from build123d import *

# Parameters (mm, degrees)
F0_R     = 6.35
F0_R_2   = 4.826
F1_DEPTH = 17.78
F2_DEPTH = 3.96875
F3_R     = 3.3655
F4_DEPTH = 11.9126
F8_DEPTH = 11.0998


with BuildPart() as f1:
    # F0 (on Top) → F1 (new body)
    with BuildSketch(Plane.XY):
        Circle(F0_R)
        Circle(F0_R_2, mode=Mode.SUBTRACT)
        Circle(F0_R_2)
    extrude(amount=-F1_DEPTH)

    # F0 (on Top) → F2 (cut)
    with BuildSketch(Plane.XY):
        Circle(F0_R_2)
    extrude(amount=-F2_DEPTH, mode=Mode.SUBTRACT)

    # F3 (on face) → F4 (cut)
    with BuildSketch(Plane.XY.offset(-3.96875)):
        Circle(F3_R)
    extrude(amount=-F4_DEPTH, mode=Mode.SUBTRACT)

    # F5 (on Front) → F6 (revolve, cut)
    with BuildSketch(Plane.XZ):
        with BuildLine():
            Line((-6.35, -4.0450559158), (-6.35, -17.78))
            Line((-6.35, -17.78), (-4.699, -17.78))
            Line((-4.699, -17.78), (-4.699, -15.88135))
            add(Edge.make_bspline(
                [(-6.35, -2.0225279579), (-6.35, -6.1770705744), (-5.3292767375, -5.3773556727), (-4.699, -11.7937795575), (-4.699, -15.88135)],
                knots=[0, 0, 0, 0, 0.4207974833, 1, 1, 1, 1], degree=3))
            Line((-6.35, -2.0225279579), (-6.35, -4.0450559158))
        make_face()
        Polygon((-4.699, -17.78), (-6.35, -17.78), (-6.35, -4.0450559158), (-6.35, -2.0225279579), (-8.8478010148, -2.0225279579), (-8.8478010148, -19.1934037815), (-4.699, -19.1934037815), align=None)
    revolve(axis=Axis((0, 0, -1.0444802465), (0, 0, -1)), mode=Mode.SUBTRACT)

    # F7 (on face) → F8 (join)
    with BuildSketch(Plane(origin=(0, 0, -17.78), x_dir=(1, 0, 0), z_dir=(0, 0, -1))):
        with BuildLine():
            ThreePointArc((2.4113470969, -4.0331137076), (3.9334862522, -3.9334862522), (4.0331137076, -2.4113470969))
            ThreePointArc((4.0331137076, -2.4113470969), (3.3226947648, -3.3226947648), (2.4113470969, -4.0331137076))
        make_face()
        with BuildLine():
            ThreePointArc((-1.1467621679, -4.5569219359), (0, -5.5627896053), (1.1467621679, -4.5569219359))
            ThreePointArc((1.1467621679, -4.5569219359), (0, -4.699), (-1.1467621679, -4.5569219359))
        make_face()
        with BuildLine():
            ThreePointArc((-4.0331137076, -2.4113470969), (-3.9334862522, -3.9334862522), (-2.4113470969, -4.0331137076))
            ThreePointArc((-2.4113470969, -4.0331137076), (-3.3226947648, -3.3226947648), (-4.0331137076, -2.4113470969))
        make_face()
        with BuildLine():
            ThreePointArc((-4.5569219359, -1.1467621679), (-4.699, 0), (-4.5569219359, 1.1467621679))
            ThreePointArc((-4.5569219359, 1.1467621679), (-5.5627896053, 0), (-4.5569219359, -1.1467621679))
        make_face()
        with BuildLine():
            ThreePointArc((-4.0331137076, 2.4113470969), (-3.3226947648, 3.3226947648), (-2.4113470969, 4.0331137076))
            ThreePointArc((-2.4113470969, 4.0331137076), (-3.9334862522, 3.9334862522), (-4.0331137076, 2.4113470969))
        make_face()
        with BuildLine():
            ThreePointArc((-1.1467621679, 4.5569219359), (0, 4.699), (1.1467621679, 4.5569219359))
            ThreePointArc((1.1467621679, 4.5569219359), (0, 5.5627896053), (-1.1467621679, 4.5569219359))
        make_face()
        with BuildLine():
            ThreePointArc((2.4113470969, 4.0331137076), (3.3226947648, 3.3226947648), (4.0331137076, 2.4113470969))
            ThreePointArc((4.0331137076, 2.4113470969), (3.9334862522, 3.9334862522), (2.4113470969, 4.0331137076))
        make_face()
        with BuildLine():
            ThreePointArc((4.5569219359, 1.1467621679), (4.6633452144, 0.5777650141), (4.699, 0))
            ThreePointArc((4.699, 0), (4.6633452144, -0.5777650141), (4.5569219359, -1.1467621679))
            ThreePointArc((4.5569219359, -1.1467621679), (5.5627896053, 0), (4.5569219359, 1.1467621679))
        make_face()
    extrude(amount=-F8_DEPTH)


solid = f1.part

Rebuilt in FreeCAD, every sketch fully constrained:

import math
import FreeCAD as App
import Part
import Sketcher

V = App.Vector
Q = App.Units.Quantity

doc = App.newDocument("Part")
body = doc.addObject("PartDesign::Body", "Body")

# Sketch on XY plane
sketch1 = doc.addObject("Sketcher::SketchObject", "Sketch")
body.addObject(sketch1)
sketch1.AttachmentSupport = (doc.XY_Plane, [""])
sketch1.MapMode = "FlatFace"
sketch1.addGeometry(Part.Circle(V(0, 0, 0), V(0, 0, 1), 6.35), False)
sketch1.addConstraint([
    Sketcher.Constraint("Coincident", 0, 3, -1, 1),
    Sketcher.Constraint("Diameter", 0, Q("0.5 in")),
])
pad1 = doc.addObject("PartDesign::Pad", "Pad")
body.addObject(pad1)
pad1.Profile = sketch1
pad1.Length = Q("0.7 in")
pad1.Reversed = True

# Sketch on XY plane
sketch2 = doc.addObject("Sketcher::SketchObject", "Sketch001")
body.addObject(sketch2)
sketch2.AttachmentSupport = (doc.XY_Plane, [""])
sketch2.MapMode = "FlatFace"
sketch2.addGeometry(Part.Circle(V(0, 0, 0), V(0, 0, 1), 4.826), False)
sketch2.addConstraint([
    Sketcher.Constraint("Coincident", 0, 3, -1, 1),
    Sketcher.Constraint("Diameter", 0, Q("0.38 in")),
])
pocket1 = doc.addObject("PartDesign::Pocket", "Pocket")
body.addObject(pocket1)
pocket1.Profile = sketch2
pocket1.Length = Q("0.15625 in")

# Sketch on XY plane
sketch3 = doc.addObject("Sketcher::SketchObject", "Sketch002")
body.addObject(sketch3)
sketch3.AttachmentSupport = (doc.XY_Plane, [""])
sketch3.MapMode = "FlatFace"
sketch3.AttachmentOffset = App.Placement(V(0, 0, -0.15625 * 25.4), App.Rotation())
sketch3.addGeometry(Part.Circle(V(0, 0, 0), V(0, 0, 1), 3.3655), False)
sketch3.addConstraint([
    Sketcher.Constraint("Coincident", 0, 3, -1, 1),
    Sketcher.Constraint("Diameter", 0, Q("0.265 in")),
])
pocket2 = doc.addObject("PartDesign::Pocket", "Pocket001")
body.addObject(pocket2)
pocket2.Profile = sketch3
pocket2.Length = Q("0.469 in")

# Sketch on XZ plane
sketch4 = doc.addObject("Sketcher::SketchObject", "Sketch003")
body.addObject(sketch4)
sketch4.AttachmentSupport = (doc.XZ_Plane, [""])
sketch4.MapMode = "FlatFace"
sketch4.addGeometry([
    Part.BSplineCurve([V(-6.35, -2.022528, 0), V(-6.35, -6.177071, 0), V(-5.329277, -5.377356, 0), V(-4.699, -11.79378, 0), V(-4.699, -15.88135, 0)], [4, 1, 4], [0, 0.420797483, 1], False, 3, [1, 1, 1, 1, 1], False),  # 0
    Part.LineSegment(V(-6.35, -2.022528, 0), V(-8.847801, -2.022528, 0)),  # 1
    Part.LineSegment(V(-8.847801, -2.022528, 0), V(-8.847801, -19.193404, 0)),  # 2
    Part.LineSegment(V(-8.847801, -19.193404, 0), V(-4.699, -19.193404, 0)),  # 3
    Part.LineSegment(V(-4.699, -19.193404, 0), V(-4.699, -15.88135, 0)),  # 4
], False)
sketch4.addConstraint([
    Sketcher.Constraint("Block", 0),
    Sketcher.Constraint("Coincident", 0, 1, 1, 1),
    Sketcher.Constraint("Coincident", 1, 2, 2, 1),
    Sketcher.Constraint("Coincident", 2, 2, 3, 1),
    Sketcher.Constraint("Coincident", 3, 2, 4, 1),
    Sketcher.Constraint("Coincident", 4, 2, 0, 2),
    Sketcher.Constraint("Horizontal", 1),
    Sketcher.Constraint("Vertical", 2),
    Sketcher.Constraint("Horizontal", 3),
    Sketcher.Constraint("Vertical", 4),
    Sketcher.Constraint("DistanceX", 1, 2, 1, 1, Q("2.497801 mm")),
    Sketcher.Constraint("DistanceY", 2, 2, 2, 1, Q("17.170876 mm")),
])
groove = doc.addObject("PartDesign::Groove", "Groove")
body.addObject(groove)
groove.Profile = sketch4
groove.ReferenceAxis = (sketch4, ["V_Axis"])
groove.Angle = 360

# Sketch on XY plane
sketch5 = doc.addObject("Sketcher::SketchObject", "Sketch004")
body.addObject(sketch5)
sketch5.AttachmentSupport = (doc.XY_Plane, [""])
sketch5.MapMode = "FlatFace"
sketch5.AttachmentOffset = App.Placement(V(0, 0, -0.7 * 25.4), App.Rotation())
sketch5.addGeometry([
    Part.ArcOfCircle(Part.Circle(V(3.115625, 3.115625, 0), V(0, 0, 1), 1.15663), math.radians(-37.510406), math.radians(127.510406)),  # 0
    Part.ArcOfCircle(Part.Circle(V(0, 0, 0), V(0, 0, 1), 4.699), math.radians(30.874663), math.radians(59.125337)),  # 1
    Part.ArcOfCircle(Part.Circle(V(0, 4.40616, 0), V(0, 0, 1), 1.15663), math.radians(7.489594), math.radians(172.510406)),  # 2
    Part.ArcOfCircle(Part.Circle(V(0, 0, 0), V(0, 0, 1), 4.699), math.radians(75.874663), math.radians(104.125337)),  # 3
    Part.ArcOfCircle(Part.Circle(V(-3.115625, 3.115625, 0), V(0, 0, 1), 1.15663), math.radians(52.489594), math.radians(217.510406)),  # 4
    Part.ArcOfCircle(Part.Circle(V(0, 0, 0), V(0, 0, 1), 4.699), math.radians(120.874663), math.radians(149.125337)),  # 5
    Part.ArcOfCircle(Part.Circle(V(0, 0, 0), V(0, 0, 1), 4.699), math.radians(165.874663), math.radians(194.125337)),  # 6
    Part.ArcOfCircle(Part.Circle(V(-4.40616, 0, 0), V(0, 0, 1), 1.15663), math.radians(97.489594), math.radians(262.510406)),  # 7
    Part.ArcOfCircle(Part.Circle(V(0, 0, 0), V(0, 0, 1), 4.699), math.radians(-149.125337), math.radians(-120.874663)),  # 8
    Part.ArcOfCircle(Part.Circle(V(-3.115625, -3.115625, 0), V(0, 0, 1), 1.15663), math.radians(142.489594), math.radians(307.510406)),  # 9
    Part.ArcOfCircle(Part.Circle(V(0, 0, 0), V(0, 0, 1), 4.699), math.radians(-104.125337), math.radians(-75.874663)),  # 10
    Part.ArcOfCircle(Part.Circle(V(0, -4.40616, 0), V(0, 0, 1), 1.15663), math.radians(-172.510406), math.radians(-7.489594)),  # 11
    Part.ArcOfCircle(Part.Circle(V(0, 0, 0), V(0, 0, 1), 4.699), math.radians(-59.125337), math.radians(-30.874663)),  # 12
    Part.ArcOfCircle(Part.Circle(V(3.115625, -3.115625, 0), V(0, 0, 1), 1.15663), math.radians(-127.510406), math.radians(37.510406)),  # 13
    Part.ArcOfCircle(Part.Circle(V(0, 0, 0), V(0, 0, 1), 4.699), math.radians(-14.125337), math.radians(0)),  # 14
    Part.ArcOfCircle(Part.Circle(V(0, 0, 0), V(0, 0, 1), 4.699), math.radians(0), math.radians(14.125337)),  # 15
    Part.ArcOfCircle(Part.Circle(V(4.40616, 0, 0), V(0, 0, 1), 1.15663), math.radians(-82.510406), math.radians(82.510406)),  # 16
], False)
sketch5.addConstraint([
    Sketcher.Constraint("Coincident", 0, 1, 1, 1),
    Sketcher.Constraint("Coincident", 1, 2, 0, 2),
    Sketcher.Constraint("Coincident", 2, 1, 3, 1),
    Sketcher.Constraint("Coincident", 3, 2, 2, 2),
    Sketcher.Constraint("Coincident", 4, 1, 5, 1),
    Sketcher.Constraint("Coincident", 5, 2, 4, 2),
    Sketcher.Constraint("Coincident", 6, 1, 7, 1),
    Sketcher.Constraint("Coincident", 7, 2, 6, 2),
    Sketcher.Constraint("Coincident", 8, 1, 9, 1),
    Sketcher.Constraint("Coincident", 9, 2, 8, 2),
    Sketcher.Constraint("Coincident", 10, 1, 11, 1),
    Sketcher.Constraint("Coincident", 11, 2, 10, 2),
    Sketcher.Constraint("Coincident", 12, 1, 13, 1),
    Sketcher.Constraint("Coincident", 13, 2, 12, 2),
    Sketcher.Constraint("Tangent", 14, 2, 15, 1),
    Sketcher.Constraint("Coincident", 15, 2, 16, 2),
    Sketcher.Constraint("Coincident", 16, 1, 14, 1),
    Sketcher.Constraint("Coincident", 1, 3, -1, 1),
    Sketcher.Constraint("Coincident", 3, 3, -1, 1),
    Sketcher.Constraint("Coincident", 5, 3, -1, 1),
    Sketcher.Constraint("Coincident", 6, 3, -1, 1),
    Sketcher.Constraint("Coincident", 8, 3, -1, 1),
    Sketcher.Constraint("Coincident", 10, 3, -1, 1),
    Sketcher.Constraint("Coincident", 12, 3, -1, 1),
    Sketcher.Constraint("Coincident", 14, 3, -1, 1),
    Sketcher.Constraint("Equal", 0, 2),
    Sketcher.Constraint("Equal", 1, 3),
    Sketcher.Constraint("Equal", 2, 4),
    Sketcher.Constraint("Equal", 3, 5),
    Sketcher.Constraint("Equal", 5, 6),
    Sketcher.Constraint("Equal", 4, 7),
    Sketcher.Constraint("Equal", 6, 8),
    Sketcher.Constraint("Equal", 7, 9),
    Sketcher.Constraint("Equal", 8, 10),
    Sketcher.Constraint("Equal", 9, 11),
    Sketcher.Constraint("Equal", 10, 12),
    Sketcher.Constraint("Equal", 11, 13),
    Sketcher.Constraint("Equal", 12, 14),
    Sketcher.Constraint("Equal", 14, 15),
    Sketcher.Constraint("Equal", 13, 16),
    Sketcher.Constraint("Symmetric", 0, 3, 9, 3, -1, 1),
    Sketcher.Constraint("Symmetric", 2, 3, 11, 3, -1, 1),
    Sketcher.Constraint("Symmetric", 4, 3, 13, 3, -1, 1),
    Sketcher.Constraint("Symmetric", 7, 3, 16, 3, -1, 1),
    Sketcher.Constraint("Symmetric", 0, 3, 4, 3, -2),
    Sketcher.Constraint("PointOnObject", 2, 3, -2),
    Sketcher.Constraint("PointOnObject", 7, 3, -1),
    Sketcher.Constraint("PointOnObject", 14, 2, -1),
    Sketcher.Constraint("Radius", 1, Q("0.185 in")),
    Sketcher.Constraint("Radius", 0, Q("1.15663 mm")),
    Sketcher.Constraint("DistanceY", -1, 1, 2, 3, Q("4.40616 mm")),
    Sketcher.Constraint("DistanceX", 7, 3, -1, 1, Q("4.40616 mm")),
    Sketcher.Constraint("DistanceX", 4, 3, 0, 3, Q("6.231251 mm")),
    Sketcher.Constraint("DistanceX", 0, 3, 0, 1, Q("0.917488 mm")),
])
pad2 = doc.addObject("PartDesign::Pad", "Pad001")
body.addObject(pad2)
pad2.Profile = sketch5
pad2.Length = Q("0.437 in")

doc.recompute()
